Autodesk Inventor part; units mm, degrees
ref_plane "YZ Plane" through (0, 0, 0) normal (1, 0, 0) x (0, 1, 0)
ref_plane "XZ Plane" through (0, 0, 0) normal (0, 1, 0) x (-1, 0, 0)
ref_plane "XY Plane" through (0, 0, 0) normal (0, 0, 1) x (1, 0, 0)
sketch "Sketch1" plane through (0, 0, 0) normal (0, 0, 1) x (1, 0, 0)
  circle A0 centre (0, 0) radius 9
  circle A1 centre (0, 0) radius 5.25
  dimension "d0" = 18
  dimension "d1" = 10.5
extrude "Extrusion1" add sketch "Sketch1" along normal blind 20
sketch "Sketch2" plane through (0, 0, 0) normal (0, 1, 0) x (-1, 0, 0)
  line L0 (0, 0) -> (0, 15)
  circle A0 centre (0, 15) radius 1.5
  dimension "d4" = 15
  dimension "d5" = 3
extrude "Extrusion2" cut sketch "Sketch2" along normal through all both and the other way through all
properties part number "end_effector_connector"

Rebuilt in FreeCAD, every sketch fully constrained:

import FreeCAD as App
import Part
import Sketcher
Q = App.Units.Quantity

doc = App.newDocument("Part")
body = doc.addObject("PartDesign::Body", "Body")

# Sketch on XY plane
sketch1 = doc.addObject("Sketcher::SketchObject", "Sketch")
body.addObject(sketch1)
sketch1.AttachmentSupport = (doc.XY_Plane, [""])
sketch1.MapMode = "FlatFace"
sketch1.addGeometry([
    Part.Circle(App.Vector(0, 0, 0), App.Vector(0, 0, 1), 9),
    Part.Circle(App.Vector(0, 0, 0), App.Vector(0, 0, 1), 5.25),
], False)
sketch1.addConstraint([
    Sketcher.Constraint("Coincident", 0, 3, -1, 1),
    Sketcher.Constraint("Coincident", 1, 3, -1, 1),
    Sketcher.Constraint("Diameter", 0, Q("18 mm")),
    Sketcher.Constraint("Diameter", 1, Q("10.5 mm")),
])
pad1 = doc.addObject("PartDesign::Pad", "Pad")
body.addObject(pad1)
pad1.Profile = sketch1
pad1.Length = 20

# Sketch on XZ plane
sketch2 = doc.addObject("Sketcher::SketchObject", "Sketch001")
body.addObject(sketch2)
sketch2.AttachmentSupport = (doc.XZ_Plane, [""])
sketch2.MapMode = "FlatFace"
sketch2.addGeometry(Part.Circle(App.Vector(0, 15, 0), App.Vector(0, 0, 1), 1.5), False)
sketch2.addConstraint([
    Sketcher.Constraint("PointOnObject", 0, 3, -2),
    Sketcher.Constraint("Diameter", 0, Q("3 mm")),
    Sketcher.Constraint("DistanceY", -1, 1, 0, 3, Q("15 mm")),
])
pocket1 = doc.addObject("PartDesign::Pocket", "Pocket")
body.addObject(pocket1)
pocket1.Profile = sketch2
pocket1.Type = "ThroughAll"
pocket1.Midplane = True

doc.recompute()
